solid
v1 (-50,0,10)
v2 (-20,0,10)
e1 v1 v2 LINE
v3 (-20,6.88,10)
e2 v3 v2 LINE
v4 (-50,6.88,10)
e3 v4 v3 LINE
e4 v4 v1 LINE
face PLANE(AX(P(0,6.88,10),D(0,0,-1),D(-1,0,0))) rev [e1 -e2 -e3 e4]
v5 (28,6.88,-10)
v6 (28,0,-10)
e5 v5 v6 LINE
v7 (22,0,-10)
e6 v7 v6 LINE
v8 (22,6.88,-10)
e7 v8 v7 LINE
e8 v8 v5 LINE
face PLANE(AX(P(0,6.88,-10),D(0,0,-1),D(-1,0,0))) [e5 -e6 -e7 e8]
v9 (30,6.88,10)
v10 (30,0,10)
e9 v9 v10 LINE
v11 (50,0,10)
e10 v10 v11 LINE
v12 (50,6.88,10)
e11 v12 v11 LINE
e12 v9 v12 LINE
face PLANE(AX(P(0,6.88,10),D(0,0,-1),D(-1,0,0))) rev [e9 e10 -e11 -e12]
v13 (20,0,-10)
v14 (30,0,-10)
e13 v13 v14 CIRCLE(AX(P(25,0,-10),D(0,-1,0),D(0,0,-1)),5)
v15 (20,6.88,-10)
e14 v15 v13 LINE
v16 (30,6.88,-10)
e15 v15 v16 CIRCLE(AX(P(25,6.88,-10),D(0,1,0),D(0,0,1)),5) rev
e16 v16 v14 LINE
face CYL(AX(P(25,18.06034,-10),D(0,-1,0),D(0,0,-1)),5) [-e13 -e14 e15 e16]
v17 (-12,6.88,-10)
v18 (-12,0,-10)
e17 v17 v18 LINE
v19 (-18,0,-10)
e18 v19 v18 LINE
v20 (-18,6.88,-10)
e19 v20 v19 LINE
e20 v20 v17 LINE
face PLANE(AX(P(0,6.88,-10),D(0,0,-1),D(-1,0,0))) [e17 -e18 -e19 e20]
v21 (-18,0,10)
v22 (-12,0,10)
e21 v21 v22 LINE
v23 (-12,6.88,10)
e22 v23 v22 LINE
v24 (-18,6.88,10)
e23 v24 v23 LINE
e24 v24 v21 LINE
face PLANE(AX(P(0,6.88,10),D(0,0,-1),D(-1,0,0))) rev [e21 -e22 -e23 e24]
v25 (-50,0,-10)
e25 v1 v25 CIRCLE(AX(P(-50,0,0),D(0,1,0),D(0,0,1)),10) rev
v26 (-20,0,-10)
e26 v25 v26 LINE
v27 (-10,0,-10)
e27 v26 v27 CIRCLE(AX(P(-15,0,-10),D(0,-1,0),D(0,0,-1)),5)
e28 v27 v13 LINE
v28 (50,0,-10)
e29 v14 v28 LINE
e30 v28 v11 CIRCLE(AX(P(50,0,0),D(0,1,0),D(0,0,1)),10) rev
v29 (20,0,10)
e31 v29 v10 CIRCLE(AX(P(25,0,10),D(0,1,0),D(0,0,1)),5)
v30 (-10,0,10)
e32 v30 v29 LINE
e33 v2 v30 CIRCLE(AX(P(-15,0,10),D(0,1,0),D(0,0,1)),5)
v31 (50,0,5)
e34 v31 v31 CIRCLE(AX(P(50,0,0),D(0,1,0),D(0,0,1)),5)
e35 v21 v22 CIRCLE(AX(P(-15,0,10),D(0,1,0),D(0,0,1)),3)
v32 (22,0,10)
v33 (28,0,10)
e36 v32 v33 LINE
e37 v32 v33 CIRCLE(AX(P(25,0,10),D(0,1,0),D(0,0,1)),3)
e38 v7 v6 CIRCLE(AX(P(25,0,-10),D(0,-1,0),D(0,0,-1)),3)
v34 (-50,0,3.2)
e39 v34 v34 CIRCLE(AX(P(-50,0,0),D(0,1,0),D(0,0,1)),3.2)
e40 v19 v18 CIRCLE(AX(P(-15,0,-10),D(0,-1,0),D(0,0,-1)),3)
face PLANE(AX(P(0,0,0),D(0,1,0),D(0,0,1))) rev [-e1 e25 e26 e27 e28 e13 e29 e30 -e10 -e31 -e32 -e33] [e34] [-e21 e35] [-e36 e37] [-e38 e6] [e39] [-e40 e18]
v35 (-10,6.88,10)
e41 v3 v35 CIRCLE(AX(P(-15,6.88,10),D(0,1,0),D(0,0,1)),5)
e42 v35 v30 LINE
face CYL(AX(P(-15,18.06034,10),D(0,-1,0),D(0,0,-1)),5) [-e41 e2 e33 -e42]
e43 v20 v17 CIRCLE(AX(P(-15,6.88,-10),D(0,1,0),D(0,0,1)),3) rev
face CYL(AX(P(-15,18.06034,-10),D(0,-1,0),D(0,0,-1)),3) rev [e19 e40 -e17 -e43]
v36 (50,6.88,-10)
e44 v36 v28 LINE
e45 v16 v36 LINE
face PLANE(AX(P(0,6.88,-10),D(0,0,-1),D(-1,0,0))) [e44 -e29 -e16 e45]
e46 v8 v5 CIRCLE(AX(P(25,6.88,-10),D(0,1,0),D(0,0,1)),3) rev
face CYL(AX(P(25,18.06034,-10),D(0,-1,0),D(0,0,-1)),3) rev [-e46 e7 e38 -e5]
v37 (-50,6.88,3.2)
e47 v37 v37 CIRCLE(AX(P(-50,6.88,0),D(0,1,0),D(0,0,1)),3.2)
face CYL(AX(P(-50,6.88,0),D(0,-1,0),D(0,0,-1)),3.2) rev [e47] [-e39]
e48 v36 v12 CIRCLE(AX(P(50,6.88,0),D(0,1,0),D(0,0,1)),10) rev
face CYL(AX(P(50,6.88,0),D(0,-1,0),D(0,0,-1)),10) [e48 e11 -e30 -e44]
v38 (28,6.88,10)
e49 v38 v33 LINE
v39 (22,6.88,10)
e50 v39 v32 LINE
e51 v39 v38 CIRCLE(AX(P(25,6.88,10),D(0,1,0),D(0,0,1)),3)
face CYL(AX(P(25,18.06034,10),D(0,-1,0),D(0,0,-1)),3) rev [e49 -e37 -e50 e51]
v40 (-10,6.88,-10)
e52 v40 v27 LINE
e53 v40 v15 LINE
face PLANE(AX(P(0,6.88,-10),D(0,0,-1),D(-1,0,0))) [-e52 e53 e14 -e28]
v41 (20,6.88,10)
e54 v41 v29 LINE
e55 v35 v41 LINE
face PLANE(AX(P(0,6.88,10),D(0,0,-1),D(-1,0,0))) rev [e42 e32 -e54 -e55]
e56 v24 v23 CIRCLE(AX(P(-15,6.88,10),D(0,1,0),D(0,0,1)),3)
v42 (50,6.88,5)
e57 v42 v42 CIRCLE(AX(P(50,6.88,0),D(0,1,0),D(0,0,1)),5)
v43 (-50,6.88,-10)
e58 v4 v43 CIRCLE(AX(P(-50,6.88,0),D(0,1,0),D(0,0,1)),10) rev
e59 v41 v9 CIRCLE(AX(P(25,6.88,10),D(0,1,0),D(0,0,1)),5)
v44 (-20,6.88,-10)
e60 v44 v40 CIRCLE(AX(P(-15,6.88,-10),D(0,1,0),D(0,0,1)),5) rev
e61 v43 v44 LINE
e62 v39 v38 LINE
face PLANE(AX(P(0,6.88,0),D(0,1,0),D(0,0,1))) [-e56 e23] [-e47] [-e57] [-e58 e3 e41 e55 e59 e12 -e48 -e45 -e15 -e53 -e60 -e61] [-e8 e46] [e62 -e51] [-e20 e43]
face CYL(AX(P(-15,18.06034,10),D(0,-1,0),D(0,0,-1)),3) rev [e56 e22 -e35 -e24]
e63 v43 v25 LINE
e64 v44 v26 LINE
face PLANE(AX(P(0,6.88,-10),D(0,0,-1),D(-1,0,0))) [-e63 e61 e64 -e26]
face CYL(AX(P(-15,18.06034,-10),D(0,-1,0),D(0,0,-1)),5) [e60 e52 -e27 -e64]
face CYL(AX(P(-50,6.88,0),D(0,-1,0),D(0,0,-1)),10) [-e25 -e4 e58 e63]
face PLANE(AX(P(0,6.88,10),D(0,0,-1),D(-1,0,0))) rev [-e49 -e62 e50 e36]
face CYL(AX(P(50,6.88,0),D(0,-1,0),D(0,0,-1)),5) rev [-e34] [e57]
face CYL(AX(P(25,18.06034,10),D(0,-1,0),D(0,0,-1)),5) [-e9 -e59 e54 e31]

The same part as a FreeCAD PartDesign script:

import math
import FreeCAD as App
import Part
import Sketcher

V = App.Vector

doc = App.newDocument("Part")
body = doc.addObject("PartDesign::Body", "Body")

# Sketch on XZ plane
sketch1 = doc.addObject("Sketcher::SketchObject", "Sketch")
body.addObject(sketch1)
sketch1.AttachmentSupport = (doc.XZ_Plane, [""])
sketch1.MapMode = "FlatFace"
sketch1.addGeometry([
    Part.LineSegment(V(-50, 10, 0), V(50, 10, 0)),  # 0
    Part.ArcOfCircle(Part.Circle(V(50, 0, 0), V(0, 0, 1), 10), math.radians(-90), math.radians(90)),  # 1
    Part.LineSegment(V(50, -10, 0), V(-50, -10, 0)),  # 2
    Part.ArcOfCircle(Part.Circle(V(-50, 0, 0), V(0, 0, 1), 10), math.radians(90), math.radians(270)),  # 3
    Part.Circle(V(-50, 0, 0), V(0, 0, 1), 3.2),  # 4
    Part.Circle(V(50, 0, 0), V(0, 0, 1), 5),  # 5
], False)
sketch1.addConstraint([
    Sketcher.Constraint("Tangent", 0, 2, 1, 2),
    Sketcher.Constraint("Tangent", 1, 1, 2, 1),
    Sketcher.Constraint("Tangent", 2, 2, 3, 2),
    Sketcher.Constraint("Tangent", 3, 1, 0, 1),
    Sketcher.Constraint("Horizontal", 0),
    Sketcher.Constraint("Horizontal", 2),
    Sketcher.Constraint("Coincident", 4, 3, 3, 3),
    Sketcher.Constraint("Coincident", 5, 3, 1, 3),
    Sketcher.Constraint("Symmetric", 1, 3, 3, 3, -1, 1),
    Sketcher.Constraint("Diameter", 5, 10.0),
    Sketcher.Constraint("Radius", 1, 10.0),
    Sketcher.Constraint("Diameter", 4, 6.4),
    Sketcher.Constraint("DistanceX", 0, 1, 0, 2, 100.0),
])
pad1 = doc.addObject("PartDesign::Pad", "Pad")
body.addObject(pad1)
pad1.Profile = sketch1
pad1.Length = 6.88
pad1.Reversed = True

# Sketch on XZ plane
sketch2 = doc.addObject("Sketcher::SketchObject", "Sketch001")
body.addObject(sketch2)
sketch2.AttachmentSupport = (doc.XZ_Plane, [""])
sketch2.MapMode = "FlatFace"
sketch2.addGeometry([
    Part.LineSegment(V(-18, 10, 0), V(-20, 10, 0)),
    Part.ArcOfCircle(Part.Circle(V(-15, 10, 0), V(0, 0, 1), 5), math.radians(0), math.radians(180)),
    Part.LineSegment(V(-10, 10, 0), V(-12, 10, 0)),
    Part.ArcOfCircle(Part.Circle(V(-15, 10, 0), V(0, 0, 1), 3), math.radians(0), math.radians(180)),
], False)
sketch2.addConstraint([
    Sketcher.Constraint("Coincident", 0, 2, 1, 2),
    Sketcher.Constraint("Coincident", 1, 1, 2, 1),
    Sketcher.Constraint("Coincident", 2, 2, 3, 1),
    Sketcher.Constraint("Coincident", 3, 2, 0, 1),
    Sketcher.Constraint("Horizontal", 0),
    Sketcher.Constraint("Horizontal", 2),
    Sketcher.Constraint("Coincident", 3, 3, 1, 3),
    Sketcher.Constraint("Horizontal", 3, 3, 0, 2),
    Sketcher.Constraint("Horizontal", 0, 2, 1, 1),
    Sketcher.Constraint("Radius", 1, 5.0),
    Sketcher.Constraint("Radius", 3, 3.0),
    Sketcher.Constraint("DistanceX", 1, 3, -1, 1, 15.0),
    Sketcher.Constraint("DistanceY", -1, 1, 1, 3, 10.0),
])
pad2 = doc.addObject("PartDesign::Pad", "Pad001")
body.addObject(pad2)
pad2.Profile = sketch2
pad2.Length = 6.88
pad2.Reversed = True
doc.recompute()

linearpattern = doc.addObject("PartDesign::LinearPattern", "LinearPattern")
body.addObject(linearpattern)
linearpattern.Originals = [pad2]
linearpattern.Direction = (doc.X_Axis, [""])
linearpattern.Mode = "offset"
linearpattern.Offset = 40
linearpattern.Occurrences = 2
body.Tip = linearpattern
doc.recompute()

mirrored = doc.addObject("PartDesign::Mirrored", "Mirrored")
body.addObject(mirrored)
mirrored.Originals = [pad2]
mirrored.MirrorPlane = (doc.XY_Plane, [""])
body.Tip = mirrored

# Sketch on XZ plane
sketch3 = doc.addObject("Sketcher::SketchObject", "Sketch002")
body.addObject(sketch3)
sketch3.AttachmentSupport = (doc.XZ_Plane, [""])
sketch3.MapMode = "FlatFace"
sketch3.addGeometry([
    Part.LineSegment(V(20, -10, 0), V(22, -10, 0)),
    Part.ArcOfCircle(Part.Circle(V(25, -10, 0), V(0, 0, 1), 3), math.radians(180), math.radians(360)),
    Part.LineSegment(V(28, -10, 0), V(30, -10, 0)),
    Part.ArcOfCircle(Part.Circle(V(25, -10, 0), V(0, 0, 1), 5), math.radians(180), math.radians(360)),
], False)
sketch3.addConstraint([
    Sketcher.Constraint("Coincident", 0, 2, 1, 1),
    Sketcher.Constraint("Coincident", 1, 2, 2, 1),
    Sketcher.Constraint("Coincident", 2, 2, 3, 2),
    Sketcher.Constraint("Coincident", 3, 1, 0, 1),
    Sketcher.Constraint("Horizontal", 0),
    Sketcher.Constraint("Horizontal", 2),
    Sketcher.Constraint("Coincident", 3, 3, 1, 3),
    Sketcher.Constraint("Horizontal", 3, 3, 0, 2),
    Sketcher.Constraint("Horizontal", 0, 2, 1, 2),
    Sketcher.Constraint("Radius", 1, 3.0),
    Sketcher.Constraint("Radius", 3, 5.0),
    Sketcher.Constraint("DistanceX", -1, 1, 1, 3, 25.0),
    Sketcher.Constraint("DistanceY", 1, 3, -1, 1, 10.0),
])
pad3 = doc.addObject("PartDesign::Pad", "Pad002")
body.addObject(pad3)
pad3.Profile = sketch3
pad3.Length = 6.88
pad3.Reversed = True

doc.recompute()
